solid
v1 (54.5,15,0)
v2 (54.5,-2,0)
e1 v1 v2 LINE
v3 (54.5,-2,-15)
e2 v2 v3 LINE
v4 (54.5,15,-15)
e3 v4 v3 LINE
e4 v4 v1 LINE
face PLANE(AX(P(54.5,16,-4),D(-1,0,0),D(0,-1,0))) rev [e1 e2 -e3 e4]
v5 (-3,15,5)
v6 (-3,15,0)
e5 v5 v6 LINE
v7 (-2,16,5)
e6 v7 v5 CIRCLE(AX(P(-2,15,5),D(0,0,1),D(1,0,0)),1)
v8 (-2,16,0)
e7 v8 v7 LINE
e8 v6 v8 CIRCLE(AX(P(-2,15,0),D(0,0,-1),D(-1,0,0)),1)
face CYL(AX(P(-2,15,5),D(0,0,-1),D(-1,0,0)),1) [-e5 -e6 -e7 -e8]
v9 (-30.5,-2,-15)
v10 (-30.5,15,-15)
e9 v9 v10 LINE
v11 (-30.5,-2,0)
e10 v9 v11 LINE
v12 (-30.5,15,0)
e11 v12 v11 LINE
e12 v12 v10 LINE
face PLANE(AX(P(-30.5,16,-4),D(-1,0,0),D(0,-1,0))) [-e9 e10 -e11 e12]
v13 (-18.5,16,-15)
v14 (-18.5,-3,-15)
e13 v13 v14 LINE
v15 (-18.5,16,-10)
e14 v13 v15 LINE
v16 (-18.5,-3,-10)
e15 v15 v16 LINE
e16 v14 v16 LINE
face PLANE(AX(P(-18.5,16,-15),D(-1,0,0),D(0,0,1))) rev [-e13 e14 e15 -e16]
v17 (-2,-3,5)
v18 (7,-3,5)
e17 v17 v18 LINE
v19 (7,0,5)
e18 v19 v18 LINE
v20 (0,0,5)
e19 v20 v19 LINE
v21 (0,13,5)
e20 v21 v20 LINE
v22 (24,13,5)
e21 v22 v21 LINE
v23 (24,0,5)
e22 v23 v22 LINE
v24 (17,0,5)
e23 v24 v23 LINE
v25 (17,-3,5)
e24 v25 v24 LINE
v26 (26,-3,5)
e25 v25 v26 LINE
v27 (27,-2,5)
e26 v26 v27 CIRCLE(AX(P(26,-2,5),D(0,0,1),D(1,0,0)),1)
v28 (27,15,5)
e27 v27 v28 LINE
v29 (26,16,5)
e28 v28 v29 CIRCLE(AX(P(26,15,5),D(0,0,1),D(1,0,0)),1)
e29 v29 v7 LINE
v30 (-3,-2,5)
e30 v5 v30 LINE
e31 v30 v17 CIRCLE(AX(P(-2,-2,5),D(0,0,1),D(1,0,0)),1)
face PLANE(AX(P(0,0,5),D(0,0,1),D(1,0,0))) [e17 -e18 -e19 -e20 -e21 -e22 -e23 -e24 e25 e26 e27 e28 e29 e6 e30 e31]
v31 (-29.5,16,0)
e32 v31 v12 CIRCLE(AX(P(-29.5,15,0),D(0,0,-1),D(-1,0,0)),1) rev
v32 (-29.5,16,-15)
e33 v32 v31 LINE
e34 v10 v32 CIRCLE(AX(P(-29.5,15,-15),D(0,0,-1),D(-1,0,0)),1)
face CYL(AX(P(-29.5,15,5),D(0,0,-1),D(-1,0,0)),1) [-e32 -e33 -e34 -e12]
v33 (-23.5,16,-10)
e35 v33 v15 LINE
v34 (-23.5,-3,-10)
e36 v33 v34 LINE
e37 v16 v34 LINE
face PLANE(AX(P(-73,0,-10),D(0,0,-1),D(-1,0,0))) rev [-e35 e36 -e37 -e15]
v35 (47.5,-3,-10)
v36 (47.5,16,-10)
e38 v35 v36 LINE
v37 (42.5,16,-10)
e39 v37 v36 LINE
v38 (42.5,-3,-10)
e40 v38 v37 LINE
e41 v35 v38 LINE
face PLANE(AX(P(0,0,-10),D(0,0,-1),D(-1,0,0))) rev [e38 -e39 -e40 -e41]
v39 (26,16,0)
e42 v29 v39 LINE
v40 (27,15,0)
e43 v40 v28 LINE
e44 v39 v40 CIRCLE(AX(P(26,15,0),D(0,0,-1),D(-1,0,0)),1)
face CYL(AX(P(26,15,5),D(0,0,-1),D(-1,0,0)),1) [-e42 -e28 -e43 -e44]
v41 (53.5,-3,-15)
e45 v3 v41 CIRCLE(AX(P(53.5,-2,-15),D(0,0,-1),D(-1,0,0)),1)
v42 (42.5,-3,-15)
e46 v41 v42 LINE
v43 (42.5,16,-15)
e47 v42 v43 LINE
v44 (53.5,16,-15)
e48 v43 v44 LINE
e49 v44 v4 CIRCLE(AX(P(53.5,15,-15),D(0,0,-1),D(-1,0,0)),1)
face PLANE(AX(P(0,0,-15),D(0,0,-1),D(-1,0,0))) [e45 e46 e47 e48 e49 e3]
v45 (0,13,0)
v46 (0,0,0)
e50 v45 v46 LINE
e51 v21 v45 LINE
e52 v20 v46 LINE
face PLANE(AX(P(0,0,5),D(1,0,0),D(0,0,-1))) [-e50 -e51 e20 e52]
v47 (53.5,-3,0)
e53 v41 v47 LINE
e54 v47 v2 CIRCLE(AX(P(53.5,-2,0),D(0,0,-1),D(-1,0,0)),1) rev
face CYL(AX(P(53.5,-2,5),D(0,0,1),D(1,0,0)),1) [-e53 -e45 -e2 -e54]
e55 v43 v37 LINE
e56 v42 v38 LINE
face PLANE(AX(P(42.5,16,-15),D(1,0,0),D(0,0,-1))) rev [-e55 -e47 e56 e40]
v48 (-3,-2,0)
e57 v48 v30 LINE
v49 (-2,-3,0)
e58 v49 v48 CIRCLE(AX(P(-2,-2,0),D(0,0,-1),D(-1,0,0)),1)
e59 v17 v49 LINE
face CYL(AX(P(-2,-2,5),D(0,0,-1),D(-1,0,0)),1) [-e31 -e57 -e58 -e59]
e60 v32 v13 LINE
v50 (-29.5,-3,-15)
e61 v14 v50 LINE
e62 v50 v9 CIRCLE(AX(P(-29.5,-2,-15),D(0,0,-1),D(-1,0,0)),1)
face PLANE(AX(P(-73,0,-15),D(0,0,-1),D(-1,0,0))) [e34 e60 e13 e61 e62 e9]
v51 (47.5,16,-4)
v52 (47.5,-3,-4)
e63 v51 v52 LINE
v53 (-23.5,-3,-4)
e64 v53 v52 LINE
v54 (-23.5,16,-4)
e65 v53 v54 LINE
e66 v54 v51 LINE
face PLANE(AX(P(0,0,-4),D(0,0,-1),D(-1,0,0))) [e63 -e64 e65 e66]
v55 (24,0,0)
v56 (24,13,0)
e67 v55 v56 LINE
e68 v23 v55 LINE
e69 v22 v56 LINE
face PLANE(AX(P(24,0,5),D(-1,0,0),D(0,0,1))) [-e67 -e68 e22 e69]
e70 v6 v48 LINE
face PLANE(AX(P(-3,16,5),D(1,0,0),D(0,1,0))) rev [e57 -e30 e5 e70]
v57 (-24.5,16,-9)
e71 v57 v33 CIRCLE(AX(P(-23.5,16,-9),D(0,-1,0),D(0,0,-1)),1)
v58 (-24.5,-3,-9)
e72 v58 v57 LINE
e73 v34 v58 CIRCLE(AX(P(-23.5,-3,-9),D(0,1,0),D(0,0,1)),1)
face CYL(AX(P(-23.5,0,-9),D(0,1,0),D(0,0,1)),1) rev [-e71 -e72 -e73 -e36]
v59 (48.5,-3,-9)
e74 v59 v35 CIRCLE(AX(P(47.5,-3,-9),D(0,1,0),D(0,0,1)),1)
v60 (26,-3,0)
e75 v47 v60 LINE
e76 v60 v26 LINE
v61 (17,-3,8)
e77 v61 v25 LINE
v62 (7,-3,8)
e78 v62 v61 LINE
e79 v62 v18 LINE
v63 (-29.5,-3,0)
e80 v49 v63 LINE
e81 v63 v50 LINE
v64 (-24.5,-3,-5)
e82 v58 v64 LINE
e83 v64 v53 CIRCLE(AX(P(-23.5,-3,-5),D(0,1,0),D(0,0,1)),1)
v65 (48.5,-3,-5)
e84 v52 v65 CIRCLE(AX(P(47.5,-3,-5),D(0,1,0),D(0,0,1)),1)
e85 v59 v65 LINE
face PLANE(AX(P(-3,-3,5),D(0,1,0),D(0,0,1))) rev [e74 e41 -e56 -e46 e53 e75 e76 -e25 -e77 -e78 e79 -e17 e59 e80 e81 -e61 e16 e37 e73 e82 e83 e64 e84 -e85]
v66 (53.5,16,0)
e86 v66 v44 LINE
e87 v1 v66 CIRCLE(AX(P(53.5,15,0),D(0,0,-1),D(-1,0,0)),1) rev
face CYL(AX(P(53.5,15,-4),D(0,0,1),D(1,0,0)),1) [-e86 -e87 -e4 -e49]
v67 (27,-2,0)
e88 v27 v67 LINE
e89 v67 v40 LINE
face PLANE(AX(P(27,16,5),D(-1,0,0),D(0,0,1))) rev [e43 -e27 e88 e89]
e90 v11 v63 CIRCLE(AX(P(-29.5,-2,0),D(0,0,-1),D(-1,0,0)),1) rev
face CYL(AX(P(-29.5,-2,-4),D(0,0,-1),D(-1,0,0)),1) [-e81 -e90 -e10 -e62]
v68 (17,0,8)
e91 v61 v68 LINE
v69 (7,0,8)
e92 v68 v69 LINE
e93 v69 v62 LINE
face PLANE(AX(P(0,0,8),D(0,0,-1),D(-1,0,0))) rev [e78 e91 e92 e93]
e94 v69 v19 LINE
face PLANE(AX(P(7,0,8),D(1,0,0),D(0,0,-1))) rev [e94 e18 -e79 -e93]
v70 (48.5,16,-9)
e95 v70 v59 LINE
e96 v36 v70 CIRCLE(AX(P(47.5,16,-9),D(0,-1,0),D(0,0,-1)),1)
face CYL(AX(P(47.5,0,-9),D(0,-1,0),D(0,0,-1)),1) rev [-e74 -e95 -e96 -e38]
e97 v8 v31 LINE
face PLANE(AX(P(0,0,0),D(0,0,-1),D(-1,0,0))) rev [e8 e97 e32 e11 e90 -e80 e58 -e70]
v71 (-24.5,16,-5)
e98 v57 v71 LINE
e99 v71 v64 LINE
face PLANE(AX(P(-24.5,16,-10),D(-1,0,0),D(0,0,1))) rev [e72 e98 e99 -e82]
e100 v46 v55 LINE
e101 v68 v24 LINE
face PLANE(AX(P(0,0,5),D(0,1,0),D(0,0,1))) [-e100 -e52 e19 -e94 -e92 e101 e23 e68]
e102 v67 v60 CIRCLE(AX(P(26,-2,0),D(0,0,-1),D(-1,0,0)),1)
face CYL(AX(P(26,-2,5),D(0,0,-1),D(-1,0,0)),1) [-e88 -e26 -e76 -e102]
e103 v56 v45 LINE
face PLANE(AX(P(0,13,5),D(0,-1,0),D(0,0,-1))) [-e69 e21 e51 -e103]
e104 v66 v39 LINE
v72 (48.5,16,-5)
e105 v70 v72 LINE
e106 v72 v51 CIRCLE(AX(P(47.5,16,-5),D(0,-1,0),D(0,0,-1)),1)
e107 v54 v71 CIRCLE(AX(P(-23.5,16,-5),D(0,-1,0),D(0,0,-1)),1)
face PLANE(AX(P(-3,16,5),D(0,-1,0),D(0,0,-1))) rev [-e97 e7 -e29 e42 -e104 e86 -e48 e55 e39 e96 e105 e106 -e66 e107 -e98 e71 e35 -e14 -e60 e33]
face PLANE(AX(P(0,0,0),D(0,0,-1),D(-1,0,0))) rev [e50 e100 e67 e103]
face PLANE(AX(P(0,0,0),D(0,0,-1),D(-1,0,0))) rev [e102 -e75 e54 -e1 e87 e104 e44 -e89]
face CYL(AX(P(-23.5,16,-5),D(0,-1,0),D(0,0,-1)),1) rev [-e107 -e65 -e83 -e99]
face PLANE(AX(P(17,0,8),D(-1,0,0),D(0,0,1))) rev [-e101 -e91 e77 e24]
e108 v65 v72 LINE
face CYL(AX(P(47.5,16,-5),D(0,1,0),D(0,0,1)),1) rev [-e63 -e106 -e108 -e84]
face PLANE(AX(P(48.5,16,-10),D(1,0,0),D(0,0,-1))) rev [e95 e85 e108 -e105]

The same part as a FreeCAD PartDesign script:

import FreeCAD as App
import Part
import Sketcher
Q = App.Units.Quantity


def edges_at(feature, points):
    """Names of the edges that pass closest to the given points."""
    edges = feature.Shape.Edges
    near = lambda p: min(range(len(edges)), key=lambda i: edges[i].distToShape(Part.Vertex(*p))[0])
    return sorted({f"Edge{near(p) + 1}" for p in points})


def add_polygon(sketch, points):
    """Adds a closed chain of lines whose ends are joined by coincident constraints."""
    first, n = sketch.GeometryCount, len(points)
    for a, b in zip(points, points[1:] + points[:1]):
        sketch.addGeometry(Part.LineSegment(App.Vector(*a, 0), App.Vector(*b, 0)), False)
    for i in range(n):
        sketch.addConstraint(Sketcher.Constraint("Coincident", first + i, 2, first + (i + 1) % n, 1))

doc = App.newDocument("Part")
body = doc.addObject("PartDesign::Body", "Body")

# Sketch on XY plane
sketch1 = body.newObject("Sketcher::SketchObject", "Sketch")
sketch1.AttachmentSupport = (doc.getObject("XY_Plane"), [""])
sketch1.MapMode = "FlatFace"
add_polygon(sketch1, [(-3, 16), (-3, -3), (27, -3), (27, 16)])  # lines 0-3
add_polygon(sketch1, [(24, 0), (0, 0), (0, 13), (24, 13)])  # lines 4-7
sketch1.addConstraint(Sketcher.Constraint("Vertical", 0))
sketch1.addConstraint(Sketcher.Constraint("Horizontal", 1))
sketch1.addConstraint(Sketcher.Constraint("Vertical", 2))
sketch1.addConstraint(Sketcher.Constraint("Horizontal", 3))
sketch1.addConstraint(Sketcher.Constraint("Horizontal", 4))
sketch1.addConstraint(Sketcher.Constraint("Vertical", 5))
sketch1.addConstraint(Sketcher.Constraint("Horizontal", 6))
sketch1.addConstraint(Sketcher.Constraint("Vertical", 7))
sketch1.addConstraint(Sketcher.Constraint("Coincident", 4, 2, -1, 1))
sketch1.addConstraint(Sketcher.Constraint("DistanceX", 1, 1, 1, 2, Q("30 mm")))
sketch1.addConstraint(Sketcher.Constraint("DistanceX", 4, 2, 4, 1, Q("24 mm")))
sketch1.addConstraint(Sketcher.Constraint("DistanceY", 0, 2, 0, 1, Q("19 mm")))
sketch1.addConstraint(Sketcher.Constraint("DistanceY", 5, 1, 5, 2, Q("13 mm")))
sketch1.addConstraint(Sketcher.Constraint("DistanceX", 0, 2, -1, 1, Q("3 mm")))
sketch1.addConstraint(Sketcher.Constraint("DistanceY", 0, 2, -1, 1, Q("3 mm")))
pad1 = body.newObject("PartDesign::Pad", "Pad")
pad1.Profile = sketch1
pad1.Length = 5

# Sketch on XY plane
sketch2 = body.newObject("Sketcher::SketchObject", "Sketch001")
sketch2.AttachmentSupport = (doc.getObject("XY_Plane"), [""])
sketch2.MapMode = "FlatFace"
add_polygon(sketch2, [(54, 16), (54, -3), (-30, -3), (-30, 16)])  # lines 0-3
sketch2.addConstraint(Sketcher.Constraint("Vertical", 0))
sketch2.addConstraint(Sketcher.Constraint("Horizontal", 1))
sketch2.addConstraint(Sketcher.Constraint("Vertical", 2))
sketch2.addConstraint(Sketcher.Constraint("Horizontal", 3))
sketch2.addConstraint(Sketcher.Constraint("DistanceX", 1, 2, 1, 1, Q("85 mm")))
sketch2.addConstraint(Sketcher.Constraint("DistanceY", 0, 2, 0, 1, Q("19 mm")))
sketch2.addConstraint(Sketcher.Constraint("DistanceY", 0, 2, -1, 1, Q("3 mm")))
sketch2.addConstraint(Sketcher.Constraint("DistanceX", -1, 1, 0, 2, Q("54.5 mm")))
pad2 = body.newObject("PartDesign::Pad", "Pad001")
pad2.Profile = sketch2
pad2.Length = 4
pad2.Reversed = True

# Sketch on XY plane
sketch3 = body.newObject("Sketcher::SketchObject", "Sketch002")
sketch3.AttachmentSupport = (doc.getObject("XY_Plane"), [""])
sketch3.MapMode = "FlatFace"
sketch3.AttachmentOffset = App.Placement(App.Vector(0, 0, -4), App.Rotation())
add_polygon(sketch3, [(54, 16), (54, -3), (48, -3), (48, 16)])  # lines 0-3
sketch3.addConstraint(Sketcher.Constraint("Vertical", 0))
sketch3.addConstraint(Sketcher.Constraint("Horizontal", 1))
sketch3.addConstraint(Sketcher.Constraint("Vertical", 2))
sketch3.addConstraint(Sketcher.Constraint("Horizontal", 3))
sketch3.addConstraint(Sketcher.Constraint("DistanceX", 1, 2, 1, 1, Q("6 mm")))
sketch3.addConstraint(Sketcher.Constraint("DistanceY", 0, 2, 0, 1, Q("19 mm")))
sketch3.addConstraint(Sketcher.Constraint("DistanceY", 0, 2, -1, 1, Q("3 mm")))
sketch3.addConstraint(Sketcher.Constraint("DistanceX", -1, 1, 0, 2, Q("54.5 mm")))
pad3 = body.newObject("PartDesign::Pad", "Pad002")
pad3.Profile = sketch3
pad3.Length = 6
pad3.Reversed = True
doc.recompute()

linearpattern = body.newObject("PartDesign::LinearPattern", "LinearPattern")
linearpattern.Originals = [pad3]
linearpattern.Direction = (doc.getObject("X_Axis"), [""])
linearpattern.Mode = "offset"
linearpattern.Offset = 79
linearpattern.Occurrences = 2
linearpattern.Reversed = True
body.Tip = linearpattern

# Sketch on XY plane
sketch4 = body.newObject("Sketcher::SketchObject", "Sketch003")
sketch4.AttachmentSupport = (doc.getObject("XY_Plane"), [""])
sketch4.MapMode = "FlatFace"
sketch4.AttachmentOffset = App.Placement(App.Vector(0, 0, -10), App.Rotation())
add_polygon(sketch4, [(54, 16), (54, -3), (42, -3), (42, 16)])  # lines 0-3
sketch4.addConstraint(Sketcher.Constraint("Vertical", 0))
sketch4.addConstraint(Sketcher.Constraint("Horizontal", 1))
sketch4.addConstraint(Sketcher.Constraint("Vertical", 2))
sketch4.addConstraint(Sketcher.Constraint("Horizontal", 3))
sketch4.addConstraint(Sketcher.Constraint("DistanceX", 1, 2, 1, 1, Q("12 mm")))
sketch4.addConstraint(Sketcher.Constraint("DistanceY", 0, 2, 0, 1, Q("19 mm")))
sketch4.addConstraint(Sketcher.Constraint("DistanceY", 0, 2, -1, 1, Q("3 mm")))
sketch4.addConstraint(Sketcher.Constraint("DistanceX", -1, 1, 0, 2, Q("54.5 mm")))
pad4 = body.newObject("PartDesign::Pad", "Pad003")
pad4.Profile = sketch4
pad4.Length = 5
pad4.Reversed = True
doc.recompute()

linearpattern2 = body.newObject("PartDesign::LinearPattern", "LinearPattern001")
linearpattern2.Originals = [pad4]
linearpattern2.Direction = (doc.getObject("X_Axis"), [""])
linearpattern2.Mode = "offset"
linearpattern2.Offset = 73
linearpattern2.Occurrences = 2
linearpattern2.Reversed = True
body.Tip = linearpattern2

# Sketch on XY plane
sketch5 = body.newObject("Sketcher::SketchObject", "Sketch004")
sketch5.AttachmentSupport = (doc.getObject("XY_Plane"), [""])
sketch5.MapMode = "FlatFace"
sketch5.AttachmentOffset = App.Placement(App.Vector(0, 0, 5), App.Rotation())
add_polygon(sketch5, [(7, 0), (7, -3), (17, -3), (17, 0)])  # lines 0-3
sketch5.addConstraint(Sketcher.Constraint("Vertical", 0))
sketch5.addConstraint(Sketcher.Constraint("Horizontal", 1))
sketch5.addConstraint(Sketcher.Constraint("Vertical", 2))
sketch5.addConstraint(Sketcher.Constraint("Horizontal", 3))
sketch5.addConstraint(Sketcher.Constraint("PointOnObject", 2, 2, -1))
sketch5.addConstraint(Sketcher.Constraint("DistanceX", 1, 1, 1, 2, Q("10 mm")))
sketch5.addConstraint(Sketcher.Constraint("DistanceY", 0, 2, 0, 1, Q("3 mm")))
sketch5.addConstraint(Sketcher.Constraint("DistanceX", -1, 1, 0, 2, Q("7 mm")))
pad5 = body.newObject("PartDesign::Pad", "Pad004")
pad5.Profile = sketch5
pad5.Length = 3
doc.recompute()

fillet = body.newObject("PartDesign::Fillet", "Fillet")
fillet.Base = (pad5, edges_at(pad5, [
    (-3, 16, 2.5),
    (27, 16, 2.5),
    (27, -3, 2.5),
    (-3, -3, 2.5),
]))
fillet.Radius = 1
doc.recompute()

fillet2 = body.newObject("PartDesign::Fillet", "Fillet001")
fillet2.Base = (fillet, edges_at(fillet, [
    (54.5, 16, -7.5),
    (54.5, -3, -7.5),
    (-30.5, -3, -7.5),
    (-30.5, 16, -7.5),
]))
fillet2.Radius = 1
doc.recompute()

fillet3 = body.newObject("PartDesign::Fillet", "Fillet002")
fillet3.Base = (fillet2, edges_at(fillet2, [
    (48.5, 6.5, -4),
    (48.5, 6.5, -10),
    (-24.5, 6.5, -4),
    (-24.5, 6.5, -10),
]))
fillet3.Radius = 1

doc.recompute()
